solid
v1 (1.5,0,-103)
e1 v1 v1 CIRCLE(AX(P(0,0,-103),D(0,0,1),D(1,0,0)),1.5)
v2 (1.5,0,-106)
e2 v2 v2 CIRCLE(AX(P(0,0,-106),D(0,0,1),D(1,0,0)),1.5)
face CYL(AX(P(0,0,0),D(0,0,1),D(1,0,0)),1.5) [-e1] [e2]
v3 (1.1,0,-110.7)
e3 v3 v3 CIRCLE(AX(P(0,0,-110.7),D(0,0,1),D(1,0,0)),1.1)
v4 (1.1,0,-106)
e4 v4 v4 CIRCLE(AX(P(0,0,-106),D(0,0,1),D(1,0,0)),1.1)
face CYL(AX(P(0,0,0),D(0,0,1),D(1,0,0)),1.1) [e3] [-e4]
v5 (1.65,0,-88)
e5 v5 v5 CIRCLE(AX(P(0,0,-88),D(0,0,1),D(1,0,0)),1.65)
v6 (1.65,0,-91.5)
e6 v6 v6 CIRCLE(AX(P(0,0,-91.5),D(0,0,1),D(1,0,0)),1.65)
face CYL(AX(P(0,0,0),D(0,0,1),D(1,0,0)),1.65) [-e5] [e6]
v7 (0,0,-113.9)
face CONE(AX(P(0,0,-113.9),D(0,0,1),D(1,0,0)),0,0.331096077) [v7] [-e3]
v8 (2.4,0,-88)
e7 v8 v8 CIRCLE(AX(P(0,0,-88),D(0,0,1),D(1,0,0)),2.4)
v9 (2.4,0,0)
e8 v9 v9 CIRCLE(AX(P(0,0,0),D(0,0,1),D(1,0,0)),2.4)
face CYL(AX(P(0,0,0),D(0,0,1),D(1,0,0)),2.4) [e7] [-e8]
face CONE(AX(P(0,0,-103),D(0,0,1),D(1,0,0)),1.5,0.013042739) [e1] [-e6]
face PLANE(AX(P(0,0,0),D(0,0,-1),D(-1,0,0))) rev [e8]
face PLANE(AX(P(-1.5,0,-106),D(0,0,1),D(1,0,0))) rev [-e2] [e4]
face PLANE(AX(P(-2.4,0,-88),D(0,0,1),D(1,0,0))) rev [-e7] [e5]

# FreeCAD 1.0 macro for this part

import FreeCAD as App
import Part
import Sketcher

V = App.Vector

doc = App.newDocument("Part")
body = doc.addObject("PartDesign::Body", "Body")

# Sketch on XZ plane
sketch1 = doc.addObject("Sketcher::SketchObject", "Sketch")
body.addObject(sketch1)
sketch1.AttachmentSupport = (doc.XZ_Plane, [""])
sketch1.MapMode = "FlatFace"
sketch1.addGeometry(Part.LineSegment(V(-2.4, 0, 0), V(0, 0, 0)), False)
sketch1.addGeometry(Part.LineSegment(V(0, 0, 0), V(0, -113.9, 0)), False)
sketch1.addGeometry(Part.LineSegment(V(0, -113.9, 0), V(-1.1, -110.7, 0)), False)
sketch1.addGeometry(Part.LineSegment(V(-1.1, -110.7, 0), V(-1.1, -106, 0)), False)
sketch1.addGeometry(Part.LineSegment(V(-1.1, -106, 0), V(-1.5, -106, 0)), False)
sketch1.addGeometry(Part.LineSegment(V(-1.5, -106, 0), V(-1.5, -103, 0)), False)
sketch1.addGeometry(Part.LineSegment(V(-1.5, -103, 0), V(-1.65, -91.5, 0)), False)
sketch1.addGeometry(Part.LineSegment(V(-1.65, -91.5, 0), V(-1.65, -88, 0)), False)
sketch1.addGeometry(Part.LineSegment(V(-1.65, -88, 0), V(-2.4, -88, 0)), False)
sketch1.addGeometry(Part.LineSegment(V(-2.4, -88, 0), V(-2.4, 0, 0)), False)
sketch1.addConstraint(Sketcher.Constraint("Coincident", 0, 2, 1, 1))
sketch1.addConstraint(Sketcher.Constraint("Coincident", 1, 2, 2, 1))
sketch1.addConstraint(Sketcher.Constraint("Coincident", 2, 2, 3, 1))
sketch1.addConstraint(Sketcher.Constraint("Coincident", 3, 2, 4, 1))
sketch1.addConstraint(Sketcher.Constraint("Coincident", 4, 2, 5, 1))
sketch1.addConstraint(Sketcher.Constraint("Coincident", 5, 2, 6, 1))
sketch1.addConstraint(Sketcher.Constraint("Coincident", 6, 2, 7, 1))
sketch1.addConstraint(Sketcher.Constraint("Coincident", 7, 2, 8, 1))
sketch1.addConstraint(Sketcher.Constraint("Coincident", 8, 2, 9, 1))
sketch1.addConstraint(Sketcher.Constraint("Coincident", 9, 2, 0, 1))
sketch1.addConstraint(Sketcher.Constraint("Horizontal", 0))
sketch1.addConstraint(Sketcher.Constraint("Vertical", 1))
sketch1.addConstraint(Sketcher.Constraint("Vertical", 3))
sketch1.addConstraint(Sketcher.Constraint("Horizontal", 4))
sketch1.addConstraint(Sketcher.Constraint("Vertical", 5))
sketch1.addConstraint(Sketcher.Constraint("Vertical", 7))
sketch1.addConstraint(Sketcher.Constraint("Horizontal", 8))
sketch1.addConstraint(Sketcher.Constraint("Vertical", 9))
sketch1.addConstraint(Sketcher.Constraint("Coincident", 0, 2, -1, 1))
sketch1.addConstraint(Sketcher.Constraint("DistanceY", 5, 1, 5, 2, 3.0))
sketch1.addConstraint(Sketcher.Constraint("DistanceY", 9, 1, 9, 2, 88.0))
sketch1.addConstraint(Sketcher.Constraint("DistanceX", 0, 1, 0, 2, 2.4))
sketch1.addConstraint(Sketcher.Constraint("DistanceX", 4, 2, 4, 1, 0.4))
sketch1.addConstraint(Sketcher.Constraint("DistanceY", 1, 2, 1, 1, 113.9))
sketch1.addConstraint(Sketcher.Constraint("DistanceY", 3, 1, 3, 2, 4.7))
sketch1.addConstraint(Sketcher.Constraint("DistanceY", 7, 1, 7, 2, 3.5))
sketch1.addConstraint(Sketcher.Constraint("DistanceY", 3, 2, -1, 1, 106.0))
sketch1.addConstraint(Sketcher.Constraint("DistanceX", 8, 2, 8, 1, 0.75))
sketch1.addConstraint(Sketcher.Constraint("DistanceX", 2, 2, -1, 1, 1.1))
revolution = doc.addObject("PartDesign::Revolution", "Revolution")
body.addObject(revolution)
revolution.Profile = sketch1
revolution.ReferenceAxis = (sketch1, ["V_Axis"])
revolution.Angle = 360

doc.recompute()
